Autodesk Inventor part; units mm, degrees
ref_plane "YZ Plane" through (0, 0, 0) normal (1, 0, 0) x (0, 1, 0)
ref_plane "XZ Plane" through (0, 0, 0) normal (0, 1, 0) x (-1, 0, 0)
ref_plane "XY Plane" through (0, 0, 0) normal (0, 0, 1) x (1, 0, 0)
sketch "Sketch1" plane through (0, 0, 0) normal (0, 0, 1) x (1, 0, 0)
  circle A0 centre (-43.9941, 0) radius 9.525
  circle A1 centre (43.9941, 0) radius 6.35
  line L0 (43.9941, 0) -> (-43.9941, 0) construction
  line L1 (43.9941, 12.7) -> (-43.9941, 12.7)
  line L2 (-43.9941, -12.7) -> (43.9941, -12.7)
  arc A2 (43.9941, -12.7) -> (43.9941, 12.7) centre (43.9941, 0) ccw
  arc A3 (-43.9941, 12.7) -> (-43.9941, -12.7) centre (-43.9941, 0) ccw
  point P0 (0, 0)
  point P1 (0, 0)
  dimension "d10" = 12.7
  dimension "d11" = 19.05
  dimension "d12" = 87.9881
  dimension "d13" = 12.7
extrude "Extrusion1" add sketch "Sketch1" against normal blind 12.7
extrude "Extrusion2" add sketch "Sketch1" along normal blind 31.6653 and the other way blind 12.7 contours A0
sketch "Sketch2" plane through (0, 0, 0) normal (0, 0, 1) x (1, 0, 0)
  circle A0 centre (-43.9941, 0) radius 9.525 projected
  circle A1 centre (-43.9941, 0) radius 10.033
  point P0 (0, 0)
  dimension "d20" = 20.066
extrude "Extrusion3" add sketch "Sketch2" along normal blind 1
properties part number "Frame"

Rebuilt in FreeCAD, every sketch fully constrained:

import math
import FreeCAD as App
import Part
import Sketcher

V = App.Vector
Q = App.Units.Quantity

doc = App.newDocument("Part")
body = doc.addObject("PartDesign::Body", "Body")

sketch1 = doc.addObject("Sketcher::SketchObject", "Sketch")
body.addObject(sketch1)
sketch1.AttachmentSupport = (doc.XY_Plane, [""])
sketch1.MapMode = "FlatFace"
sketch1.addGeometry(Part.ArcOfCircle(Part.Circle(V(44, 0, 0), V(0, 0, 1), 13), math.radians(-90), math.radians(90)), False)
sketch1.addGeometry(Part.LineSegment(V(44, 13, 0), V(-44, 13, 0)), False)
sketch1.addGeometry(Part.ArcOfCircle(Part.Circle(V(-44, 0, 0), V(0, 0, 1), 13), math.radians(90), math.radians(270)), False)
sketch1.addGeometry(Part.LineSegment(V(-44, -13, 0), V(44, -13, 0)), False)
sketch1.addGeometry(Part.Circle(V(-44, 0, 0), V(0, 0, 1), 10), False)
sketch1.addGeometry(Part.Circle(V(44, 0, 0), V(0, 0, 1), 6), False)
sketch1.addConstraint(Sketcher.Constraint("Tangent", 0, 2, 1, 1))
sketch1.addConstraint(Sketcher.Constraint("Tangent", 1, 2, 2, 1))
sketch1.addConstraint(Sketcher.Constraint("Tangent", 2, 2, 3, 1))
sketch1.addConstraint(Sketcher.Constraint("Tangent", 3, 2, 0, 1))
sketch1.addConstraint(Sketcher.Constraint("Horizontal", 1))
sketch1.addConstraint(Sketcher.Constraint("Horizontal", 3))
sketch1.addConstraint(Sketcher.Constraint("Coincident", 4, 3, 2, 3))
sketch1.addConstraint(Sketcher.Constraint("Coincident", 5, 3, 0, 3))
sketch1.addConstraint(Sketcher.Constraint("Symmetric", 0, 3, 2, 3, -1, 1))
sketch1.addConstraint(Sketcher.Constraint("Diameter", 5, Q("0.5 in")))
sketch1.addConstraint(Sketcher.Constraint("Radius", 0, Q("0.5 in")))
sketch1.addConstraint(Sketcher.Constraint("Diameter", 4, Q("0.75 in")))
sketch1.addConstraint(Sketcher.Constraint("DistanceX", 1, 2, 1, 1, Q("3.4641 in")))
pad1 = doc.addObject("PartDesign::Pad", "Pad")
body.addObject(pad1)
pad1.Profile = sketch1
pad1.Length = Q("0.5 in")
pad1.Reversed = True

sketch2 = doc.addObject("Sketcher::SketchObject", "Sketch001")
body.addObject(sketch2)
sketch2.AttachmentSupport = (doc.XY_Plane, [""])
sketch2.MapMode = "FlatFace"
sketch2.addGeometry(Part.Circle(V(-44, 0, 0), V(0, 0, 1), 10), False)
sketch2.addConstraint(Sketcher.Constraint("PointOnObject", 0, 3, -1))
sketch2.addConstraint(Sketcher.Constraint("Diameter", 0, Q("0.75 in")))
sketch2.addConstraint(Sketcher.Constraint("DistanceX", 0, 3, -1, 1, Q("43.994 mm")))
pad2 = doc.addObject("PartDesign::Pad", "Pad001")
body.addObject(pad2)
pad2.Profile = sketch2
pad2.Type = "TwoLengths"
pad2.Length = 31.6653
pad2.Length2 = Q("0.5 in")

sketch3 = doc.addObject("Sketcher::SketchObject", "Sketch002")
body.addObject(sketch3)
sketch3.AttachmentSupport = (doc.XY_Plane, [""])
sketch3.MapMode = "FlatFace"
sketch3.addGeometry(Part.Circle(V(-44, 0, 0), V(0, 0, 1), 10), False)
sketch3.addGeometry(Part.Circle(V(-44, 0, 0), V(0, 0, 1), 10), False)
sketch3.addConstraint(Sketcher.Constraint("Coincident", 1, 3, 0, 3))
sketch3.addConstraint(Sketcher.Constraint("PointOnObject", 0, 3, -1))
sketch3.addConstraint(Sketcher.Constraint("Diameter", 0, Q("0.79 in")))
sketch3.addConstraint(Sketcher.Constraint("Diameter", 1, Q("0.75 in")))
sketch3.addConstraint(Sketcher.Constraint("DistanceX", 0, 3, -1, 1, Q("43.994 mm")))
pad3 = doc.addObject("PartDesign::Pad", "Pad002")
body.addObject(pad3)
pad3.Profile = sketch3
pad3.Length = 1

doc.recompute()
